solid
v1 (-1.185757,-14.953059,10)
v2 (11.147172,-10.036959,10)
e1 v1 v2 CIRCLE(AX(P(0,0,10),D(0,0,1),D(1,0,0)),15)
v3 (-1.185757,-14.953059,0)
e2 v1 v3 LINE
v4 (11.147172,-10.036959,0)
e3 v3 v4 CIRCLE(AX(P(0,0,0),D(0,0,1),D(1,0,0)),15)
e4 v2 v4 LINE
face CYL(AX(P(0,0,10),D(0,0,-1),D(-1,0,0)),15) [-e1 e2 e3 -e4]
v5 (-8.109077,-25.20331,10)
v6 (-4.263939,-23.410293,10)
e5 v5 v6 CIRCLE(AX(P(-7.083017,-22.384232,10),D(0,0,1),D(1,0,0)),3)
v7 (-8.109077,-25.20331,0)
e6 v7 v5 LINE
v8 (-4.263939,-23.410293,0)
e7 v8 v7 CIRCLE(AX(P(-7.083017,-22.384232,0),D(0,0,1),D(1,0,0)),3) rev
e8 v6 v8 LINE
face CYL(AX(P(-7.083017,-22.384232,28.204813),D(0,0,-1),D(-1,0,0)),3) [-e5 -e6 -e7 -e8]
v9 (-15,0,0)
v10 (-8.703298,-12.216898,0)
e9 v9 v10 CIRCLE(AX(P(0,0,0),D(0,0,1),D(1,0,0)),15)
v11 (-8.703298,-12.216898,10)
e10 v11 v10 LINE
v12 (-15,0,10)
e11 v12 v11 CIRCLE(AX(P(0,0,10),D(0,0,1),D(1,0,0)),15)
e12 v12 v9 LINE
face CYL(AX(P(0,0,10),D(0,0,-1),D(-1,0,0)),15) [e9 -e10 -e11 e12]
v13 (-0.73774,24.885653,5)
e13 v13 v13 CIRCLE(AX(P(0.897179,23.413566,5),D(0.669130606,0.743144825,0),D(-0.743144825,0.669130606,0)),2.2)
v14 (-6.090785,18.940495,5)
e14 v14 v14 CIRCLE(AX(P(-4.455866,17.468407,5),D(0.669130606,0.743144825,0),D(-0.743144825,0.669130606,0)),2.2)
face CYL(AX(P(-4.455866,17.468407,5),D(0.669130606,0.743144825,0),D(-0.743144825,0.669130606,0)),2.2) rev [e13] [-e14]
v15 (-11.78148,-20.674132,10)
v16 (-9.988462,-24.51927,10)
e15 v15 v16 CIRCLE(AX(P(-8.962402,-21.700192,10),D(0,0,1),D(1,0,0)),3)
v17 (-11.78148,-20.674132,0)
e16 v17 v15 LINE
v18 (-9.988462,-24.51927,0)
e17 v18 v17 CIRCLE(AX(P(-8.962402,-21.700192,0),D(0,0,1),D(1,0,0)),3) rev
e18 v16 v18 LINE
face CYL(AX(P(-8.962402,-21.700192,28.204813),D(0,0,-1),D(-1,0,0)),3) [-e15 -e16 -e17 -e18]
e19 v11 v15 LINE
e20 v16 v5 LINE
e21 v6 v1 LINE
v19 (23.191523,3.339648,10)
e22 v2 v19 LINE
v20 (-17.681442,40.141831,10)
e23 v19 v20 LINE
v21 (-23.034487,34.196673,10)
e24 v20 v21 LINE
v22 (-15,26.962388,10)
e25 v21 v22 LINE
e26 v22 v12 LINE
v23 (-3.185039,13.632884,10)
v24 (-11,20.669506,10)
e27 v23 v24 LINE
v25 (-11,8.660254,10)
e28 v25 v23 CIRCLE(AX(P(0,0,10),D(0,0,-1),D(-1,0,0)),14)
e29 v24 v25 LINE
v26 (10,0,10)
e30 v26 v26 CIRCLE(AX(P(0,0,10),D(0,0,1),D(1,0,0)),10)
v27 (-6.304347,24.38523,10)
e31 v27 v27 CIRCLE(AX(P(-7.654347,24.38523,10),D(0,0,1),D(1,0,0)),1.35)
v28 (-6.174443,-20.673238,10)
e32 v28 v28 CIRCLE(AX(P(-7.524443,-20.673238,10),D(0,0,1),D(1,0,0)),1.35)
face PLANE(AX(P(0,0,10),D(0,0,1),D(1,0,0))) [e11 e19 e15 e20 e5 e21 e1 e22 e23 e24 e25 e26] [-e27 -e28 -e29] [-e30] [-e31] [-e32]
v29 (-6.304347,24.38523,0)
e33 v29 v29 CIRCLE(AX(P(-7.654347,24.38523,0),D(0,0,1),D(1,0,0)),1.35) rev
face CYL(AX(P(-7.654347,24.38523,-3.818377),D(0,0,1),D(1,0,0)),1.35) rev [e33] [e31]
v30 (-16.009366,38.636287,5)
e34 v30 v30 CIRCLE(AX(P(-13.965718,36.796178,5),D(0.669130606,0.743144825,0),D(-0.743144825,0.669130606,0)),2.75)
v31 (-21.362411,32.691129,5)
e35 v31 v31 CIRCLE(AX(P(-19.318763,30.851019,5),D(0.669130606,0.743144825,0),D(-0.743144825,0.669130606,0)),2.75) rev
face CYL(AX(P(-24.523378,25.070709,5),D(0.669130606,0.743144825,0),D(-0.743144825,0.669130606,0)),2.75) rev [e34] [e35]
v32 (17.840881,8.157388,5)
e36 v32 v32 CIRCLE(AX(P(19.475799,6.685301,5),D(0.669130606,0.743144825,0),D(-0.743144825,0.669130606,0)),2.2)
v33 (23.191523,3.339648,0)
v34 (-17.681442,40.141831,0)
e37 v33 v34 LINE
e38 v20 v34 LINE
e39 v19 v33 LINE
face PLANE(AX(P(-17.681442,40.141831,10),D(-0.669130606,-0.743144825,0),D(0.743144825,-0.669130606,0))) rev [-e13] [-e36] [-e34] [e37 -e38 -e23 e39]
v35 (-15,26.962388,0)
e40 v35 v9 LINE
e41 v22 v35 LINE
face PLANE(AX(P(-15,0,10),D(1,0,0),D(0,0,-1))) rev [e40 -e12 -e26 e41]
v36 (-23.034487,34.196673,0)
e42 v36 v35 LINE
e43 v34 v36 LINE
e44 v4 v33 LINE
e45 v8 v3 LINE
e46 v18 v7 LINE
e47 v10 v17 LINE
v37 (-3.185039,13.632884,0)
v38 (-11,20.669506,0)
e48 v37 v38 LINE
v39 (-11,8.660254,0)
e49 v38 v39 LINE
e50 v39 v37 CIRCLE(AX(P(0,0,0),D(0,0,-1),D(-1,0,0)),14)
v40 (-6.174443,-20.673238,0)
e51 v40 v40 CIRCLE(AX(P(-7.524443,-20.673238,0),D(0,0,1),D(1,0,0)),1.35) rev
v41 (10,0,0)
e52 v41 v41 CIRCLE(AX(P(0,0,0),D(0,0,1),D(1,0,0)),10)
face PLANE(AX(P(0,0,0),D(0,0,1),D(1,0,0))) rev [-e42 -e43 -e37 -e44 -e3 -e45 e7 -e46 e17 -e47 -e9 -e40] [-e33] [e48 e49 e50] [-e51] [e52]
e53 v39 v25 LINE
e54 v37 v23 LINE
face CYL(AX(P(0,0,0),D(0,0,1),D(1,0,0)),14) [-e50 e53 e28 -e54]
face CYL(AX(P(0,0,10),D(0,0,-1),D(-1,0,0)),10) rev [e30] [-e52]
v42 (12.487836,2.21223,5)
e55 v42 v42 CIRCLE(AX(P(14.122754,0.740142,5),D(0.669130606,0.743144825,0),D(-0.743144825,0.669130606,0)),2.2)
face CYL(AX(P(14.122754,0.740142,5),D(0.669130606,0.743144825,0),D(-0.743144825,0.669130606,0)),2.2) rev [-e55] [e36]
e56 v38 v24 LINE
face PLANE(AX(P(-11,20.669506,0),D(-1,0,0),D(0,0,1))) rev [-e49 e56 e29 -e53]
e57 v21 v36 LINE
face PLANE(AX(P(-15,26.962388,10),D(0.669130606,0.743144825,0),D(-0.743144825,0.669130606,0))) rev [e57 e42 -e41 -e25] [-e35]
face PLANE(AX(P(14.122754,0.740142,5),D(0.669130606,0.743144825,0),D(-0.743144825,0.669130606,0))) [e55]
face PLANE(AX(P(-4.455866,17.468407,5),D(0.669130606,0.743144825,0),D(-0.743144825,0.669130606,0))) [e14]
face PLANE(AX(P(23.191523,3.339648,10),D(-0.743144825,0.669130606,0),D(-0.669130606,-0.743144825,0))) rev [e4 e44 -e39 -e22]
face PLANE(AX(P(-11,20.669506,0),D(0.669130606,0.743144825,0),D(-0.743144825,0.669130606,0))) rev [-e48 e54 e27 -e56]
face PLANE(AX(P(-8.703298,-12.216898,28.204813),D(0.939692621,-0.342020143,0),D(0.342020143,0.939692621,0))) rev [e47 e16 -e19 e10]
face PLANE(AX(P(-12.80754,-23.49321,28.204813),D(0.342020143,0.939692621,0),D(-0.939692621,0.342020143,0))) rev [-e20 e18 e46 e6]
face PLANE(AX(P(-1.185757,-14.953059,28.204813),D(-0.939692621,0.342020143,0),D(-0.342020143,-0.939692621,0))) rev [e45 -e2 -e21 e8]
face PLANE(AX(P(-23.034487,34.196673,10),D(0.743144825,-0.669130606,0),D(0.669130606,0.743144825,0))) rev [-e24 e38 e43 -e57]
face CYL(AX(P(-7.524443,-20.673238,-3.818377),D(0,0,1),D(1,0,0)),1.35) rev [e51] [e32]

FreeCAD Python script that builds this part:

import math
import FreeCAD as App
import Part
import Sketcher
Q = App.Units.Quantity


def edges_at(feature, points):
    """Names of the edges that pass closest to the given points."""
    edges = feature.Shape.Edges
    near = lambda p: min(range(len(edges)), key=lambda i: edges[i].distToShape(Part.Vertex(*p))[0])
    return sorted({f"Edge{near(p) + 1}" for p in points})


def add_polygon(sketch, points):
    """Adds a closed chain of lines whose ends are joined by coincident constraints."""
    first, n = sketch.GeometryCount, len(points)
    for a, b in zip(points, points[1:] + points[:1]):
        sketch.addGeometry(Part.LineSegment(App.Vector(*a, 0), App.Vector(*b, 0)), False)
    for i in range(n):
        sketch.addConstraint(Sketcher.Constraint("Coincident", first + i, 2, first + (i + 1) % n, 1))

doc = App.newDocument("Part")
body = doc.addObject("PartDesign::Body", "Body")

# Sketch on XY plane
sketch1 = body.newObject("Sketcher::SketchObject", "Sketch")
sketch1.AttachmentSupport = (doc.getObject("XY_Plane"), [""])
sketch1.MapMode = "FlatFace"
sketch1.addGeometry(Part.LineSegment(App.Vector(-15, 27, 0), App.Vector(-15, 0, 0)), False)
sketch1.addGeometry(Part.ArcOfCircle(Part.Circle(App.Vector(0, 0, 0), App.Vector(0, 0, 1), 15), math.radians(-180), math.radians(-42)), False)
sketch1.addGeometry(Part.LineSegment(App.Vector(11, -10, 0), App.Vector(18, -3, 0)), False)
sketch1.addGeometry(Part.LineSegment(App.Vector(18, -3, 0), App.Vector(23, 3, 0)), False)
sketch1.addGeometry(Part.LineSegment(App.Vector(23, 3, 0), App.Vector(-18, 40, 0)), False)
sketch1.addGeometry(Part.LineSegment(App.Vector(-18, 40, 0), App.Vector(-23, 34, 0)), False)
sketch1.addGeometry(Part.LineSegment(App.Vector(-23, 34, 0), App.Vector(-15, 27, 0)), False)
sketch1.addGeometry(Part.Circle(App.Vector(0, 0, 0), App.Vector(0, 0, 1), 10), False)
sketch1.addConstraint(Sketcher.Constraint("Tangent", 0, 2, 1, 1))
sketch1.addConstraint(Sketcher.Constraint("Tangent", 1, 2, 2, 1))
sketch1.addConstraint(Sketcher.Constraint("Coincident", 2, 2, 3, 1))
sketch1.addConstraint(Sketcher.Constraint("Coincident", 3, 2, 4, 1))
sketch1.addConstraint(Sketcher.Constraint("Coincident", 4, 2, 5, 1))
sketch1.addConstraint(Sketcher.Constraint("Coincident", 5, 2, 6, 1))
sketch1.addConstraint(Sketcher.Constraint("Coincident", 6, 2, 0, 1))
sketch1.addConstraint(Sketcher.Constraint("Vertical", 0))
sketch1.addConstraint(Sketcher.Constraint("Coincident", 1, 3, -1, 1))
sketch1.addConstraint(Sketcher.Constraint("Coincident", 7, 3, -1, 1))
sketch1.addConstraint(Sketcher.Constraint("Parallel", 2, 3))
sketch1.addConstraint(Sketcher.Constraint("Perpendicular", 3, 4))
sketch1.addConstraint(Sketcher.Constraint("Perpendicular", 4, 5))
sketch1.addConstraint(Sketcher.Constraint("Perpendicular", 5, 6))
sketch1.addConstraint(Sketcher.Constraint("Equal", 3, 5))
sketch1.addConstraint(Sketcher.Constraint("Diameter", 7, Q("20 mm")))
sketch1.addConstraint(Sketcher.Constraint("Radius", 1, Q("15 mm")))
sketch1.addConstraint(Sketcher.Constraint("Angle", 2, Q("48 deg")))
sketch1.addConstraint(Sketcher.Constraint("Distance", 2, Q("10 mm")))
sketch1.addConstraint(Sketcher.Constraint("Distance", 3, Q("8 mm")))
sketch1.addConstraint(Sketcher.Constraint("Distance", 4, Q("55 mm")))
pad1 = body.newObject("PartDesign::Pad", "Pad")
pad1.Profile = sketch1
pad1.Length = 10

# Sketch on XY plane
sketch2 = body.newObject("Sketcher::SketchObject", "Sketch001")
sketch2.AttachmentSupport = (doc.getObject("XY_Plane"), [""])
sketch2.MapMode = "FlatFace"
add_polygon(sketch2, [(-1, -15), (-9, -12), (-13, -23), (-5, -26)])  # lines 0-3
sketch2.addConstraint(Sketcher.Constraint("Perpendicular", 0, 1))
sketch2.addConstraint(Sketcher.Constraint("Perpendicular", 1, 2))
sketch2.addConstraint(Sketcher.Constraint("Perpendicular", 2, 3))
sketch2.addConstraint(Sketcher.Constraint("Angle", 0, Q("160 deg")))
sketch2.addConstraint(Sketcher.Constraint("Distance", 0, Q("8 mm")))
sketch2.addConstraint(Sketcher.Constraint("Distance", 1, Q("12 mm")))
sketch2.addConstraint(Sketcher.Constraint("DistanceX", 2, 2, -1, 1, Q("5.289999 mm")))
sketch2.addConstraint(Sketcher.Constraint("DistanceY", 0, 2, -1, 1, Q("12.216898 mm")))
pad2 = body.newObject("PartDesign::Pad", "Pad001")
pad2.Profile = sketch2
pad2.Length = 10

# Sketch on XY plane
sketch3 = body.newObject("Sketcher::SketchObject", "Sketch002")
sketch3.AttachmentSupport = (doc.getObject("XY_Plane"), [""])
sketch3.MapMode = "FlatFace"
sketch3.AttachmentOffset = App.Placement(App.Vector(0, 0, 10), App.Rotation())
sketch3.addGeometry(Part.Circle(App.Vector(-7.5, -20.7, 0), App.Vector(0, 0, 1), 1.4), False)
sketch3.addConstraint(Sketcher.Constraint("Diameter", 0, Q("2.7 mm")))
sketch3.addConstraint(Sketcher.Constraint("DistanceX", 0, 3, -1, 1, Q("7.524443 mm")))
sketch3.addConstraint(Sketcher.Constraint("DistanceY", 0, 3, -1, 1, Q("20.673238 mm")))
pocket1 = body.newObject("PartDesign::Pocket", "Pocket")
pocket1.Profile = sketch3
pocket1.Length = 10
doc.recompute()

fillet = body.newObject("PartDesign::Fillet", "Fillet")
fillet.Base = (pocket1, edges_at(pocket1, [(-12.808, -23.493, 5), (-5.29, -26.229, 5)]))
fillet.Radius = 3

# Sketch on an angled plane
sketch4 = body.newObject("Sketcher::SketchObject", "Sketch003")
sketch4.Placement = App.Placement(App.Vector(12.044351, 13.376607, 0), App.Rotation(App.Vector(0.743144825, -0.669130606, 0), App.Vector(0, 0, -0.999999999), App.Vector(0.669130606, 0.743144825, 0), "ZXY"))
sketch4.addGeometry(Part.Circle(App.Vector(-35, -5, 0), App.Vector(0, 0, 1), 2.8), False)
sketch4.addConstraint(Sketcher.Constraint("Diameter", 0, Q("5.5 mm")))
sketch4.addConstraint(Sketcher.Constraint("DistanceX", 0, 3, -1, 1, Q("35 mm")))
sketch4.addConstraint(Sketcher.Constraint("DistanceY", 0, 3, -1, 1, Q("5 mm")))
pocket2 = body.newObject("PartDesign::Pocket", "Pocket001")
pocket2.Profile = sketch4
pocket2.Length = 8

# Sketch on an angled plane
sketch5 = body.newObject("Sketcher::SketchObject", "Sketch004")
sketch5.Placement = App.Placement(App.Vector(12.044351, 13.376607, 0), App.Rotation(App.Vector(0.743144825, -0.669130606, 0), App.Vector(0, 0, -0.999999999), App.Vector(0.669130606, 0.743144825, 0), "ZXY"))
sketch5.addGeometry(Part.Circle(App.Vector(-15, -5, 0), App.Vector(0, 0, 1), 2.2), False)
sketch5.addGeometry(Part.Circle(App.Vector(10, -5, 0), App.Vector(0, 0, 1), 2.2), False)
sketch5.addConstraint(Sketcher.Constraint("Equal", 0, 1))
sketch5.addConstraint(Sketcher.Constraint("Horizontal", 0, 3, 1, 3))
sketch5.addConstraint(Sketcher.Constraint("Diameter", 0, Q("4.4 mm")))
sketch5.addConstraint(Sketcher.Constraint("DistanceX", 0, 3, -1, 1, Q("15 mm")))
sketch5.addConstraint(Sketcher.Constraint("DistanceY", 0, 3, -1, 1, Q("5 mm")))
sketch5.addConstraint(Sketcher.Constraint("DistanceX", -1, 1, 1, 3, Q("10 mm")))
pocket3 = body.newObject("PartDesign::Pocket", "Pocket002")
pocket3.Profile = sketch5
pocket3.Length = 8

# Sketch on XY plane
sketch6 = body.newObject("Sketcher::SketchObject", "Sketch005")
sketch6.AttachmentSupport = (doc.getObject("XY_Plane"), [""])
sketch6.MapMode = "FlatFace"
sketch6.AttachmentOffset = App.Placement(App.Vector(0, 0, 10), App.Rotation())
sketch6.addGeometry(Part.LineSegment(App.Vector(-11, 21, 0), App.Vector(-11, 9, 0)), False)
sketch6.addGeometry(Part.ArcOfCircle(Part.Circle(App.Vector(0, 0, 0), App.Vector(0, 0, 1), 14), math.radians(103), math.radians(142)), False)
sketch6.addGeometry(Part.LineSegment(App.Vector(-3, 14, 0), App.Vector(-11, 21, 0)), False)
sketch6.addConstraint(Sketcher.Constraint("Coincident", 0, 2, 1, 2))
sketch6.addConstraint(Sketcher.Constraint("Coincident", 1, 1, 2, 1))
sketch6.addConstraint(Sketcher.Constraint("Coincident", 2, 2, 0, 1))
sketch6.addConstraint(Sketcher.Constraint("Vertical", 0))
sketch6.addConstraint(Sketcher.Constraint("Coincident", 1, 3, -1, 1))
sketch6.addConstraint(Sketcher.Constraint("Radius", 1, Q("14 mm")))
sketch6.addConstraint(Sketcher.Constraint("Angle", 2, Q("138 deg")))
sketch6.addConstraint(Sketcher.Constraint("DistanceX", 0, 2, -1, 1, Q("11 mm")))
sketch6.addConstraint(Sketcher.Constraint("DistanceY", 0, 2, 0, 1, Q("12.009252 mm")))
pocket4 = body.newObject("PartDesign::Pocket", "Pocket003")
pocket4.Profile = sketch6
pocket4.Length = 10

# Sketch on XY plane
sketch7 = body.newObject("Sketcher::SketchObject", "Sketch006")
sketch7.AttachmentSupport = (doc.getObject("XY_Plane"), [""])
sketch7.MapMode = "FlatFace"
sketch7.AttachmentOffset = App.Placement(App.Vector(0, 0, 10), App.Rotation())
sketch7.addGeometry(Part.Circle(App.Vector(-7.7, 24.4, 0), App.Vector(0, 0, 1), 1.4), False)
sketch7.addConstraint(Sketcher.Constraint("Diameter", 0, Q("2.7 mm")))
sketch7.addConstraint(Sketcher.Constraint("DistanceY", -1, 1, 0, 3, Q("24.38523 mm")))
sketch7.addConstraint(Sketcher.Constraint("DistanceX", 0, 3, -1, 1, Q("7.654347 mm")))
pocket5 = body.newObject("PartDesign::Pocket", "Pocket004")
pocket5.Profile = sketch7
pocket5.Length = 10

doc.recompute()
